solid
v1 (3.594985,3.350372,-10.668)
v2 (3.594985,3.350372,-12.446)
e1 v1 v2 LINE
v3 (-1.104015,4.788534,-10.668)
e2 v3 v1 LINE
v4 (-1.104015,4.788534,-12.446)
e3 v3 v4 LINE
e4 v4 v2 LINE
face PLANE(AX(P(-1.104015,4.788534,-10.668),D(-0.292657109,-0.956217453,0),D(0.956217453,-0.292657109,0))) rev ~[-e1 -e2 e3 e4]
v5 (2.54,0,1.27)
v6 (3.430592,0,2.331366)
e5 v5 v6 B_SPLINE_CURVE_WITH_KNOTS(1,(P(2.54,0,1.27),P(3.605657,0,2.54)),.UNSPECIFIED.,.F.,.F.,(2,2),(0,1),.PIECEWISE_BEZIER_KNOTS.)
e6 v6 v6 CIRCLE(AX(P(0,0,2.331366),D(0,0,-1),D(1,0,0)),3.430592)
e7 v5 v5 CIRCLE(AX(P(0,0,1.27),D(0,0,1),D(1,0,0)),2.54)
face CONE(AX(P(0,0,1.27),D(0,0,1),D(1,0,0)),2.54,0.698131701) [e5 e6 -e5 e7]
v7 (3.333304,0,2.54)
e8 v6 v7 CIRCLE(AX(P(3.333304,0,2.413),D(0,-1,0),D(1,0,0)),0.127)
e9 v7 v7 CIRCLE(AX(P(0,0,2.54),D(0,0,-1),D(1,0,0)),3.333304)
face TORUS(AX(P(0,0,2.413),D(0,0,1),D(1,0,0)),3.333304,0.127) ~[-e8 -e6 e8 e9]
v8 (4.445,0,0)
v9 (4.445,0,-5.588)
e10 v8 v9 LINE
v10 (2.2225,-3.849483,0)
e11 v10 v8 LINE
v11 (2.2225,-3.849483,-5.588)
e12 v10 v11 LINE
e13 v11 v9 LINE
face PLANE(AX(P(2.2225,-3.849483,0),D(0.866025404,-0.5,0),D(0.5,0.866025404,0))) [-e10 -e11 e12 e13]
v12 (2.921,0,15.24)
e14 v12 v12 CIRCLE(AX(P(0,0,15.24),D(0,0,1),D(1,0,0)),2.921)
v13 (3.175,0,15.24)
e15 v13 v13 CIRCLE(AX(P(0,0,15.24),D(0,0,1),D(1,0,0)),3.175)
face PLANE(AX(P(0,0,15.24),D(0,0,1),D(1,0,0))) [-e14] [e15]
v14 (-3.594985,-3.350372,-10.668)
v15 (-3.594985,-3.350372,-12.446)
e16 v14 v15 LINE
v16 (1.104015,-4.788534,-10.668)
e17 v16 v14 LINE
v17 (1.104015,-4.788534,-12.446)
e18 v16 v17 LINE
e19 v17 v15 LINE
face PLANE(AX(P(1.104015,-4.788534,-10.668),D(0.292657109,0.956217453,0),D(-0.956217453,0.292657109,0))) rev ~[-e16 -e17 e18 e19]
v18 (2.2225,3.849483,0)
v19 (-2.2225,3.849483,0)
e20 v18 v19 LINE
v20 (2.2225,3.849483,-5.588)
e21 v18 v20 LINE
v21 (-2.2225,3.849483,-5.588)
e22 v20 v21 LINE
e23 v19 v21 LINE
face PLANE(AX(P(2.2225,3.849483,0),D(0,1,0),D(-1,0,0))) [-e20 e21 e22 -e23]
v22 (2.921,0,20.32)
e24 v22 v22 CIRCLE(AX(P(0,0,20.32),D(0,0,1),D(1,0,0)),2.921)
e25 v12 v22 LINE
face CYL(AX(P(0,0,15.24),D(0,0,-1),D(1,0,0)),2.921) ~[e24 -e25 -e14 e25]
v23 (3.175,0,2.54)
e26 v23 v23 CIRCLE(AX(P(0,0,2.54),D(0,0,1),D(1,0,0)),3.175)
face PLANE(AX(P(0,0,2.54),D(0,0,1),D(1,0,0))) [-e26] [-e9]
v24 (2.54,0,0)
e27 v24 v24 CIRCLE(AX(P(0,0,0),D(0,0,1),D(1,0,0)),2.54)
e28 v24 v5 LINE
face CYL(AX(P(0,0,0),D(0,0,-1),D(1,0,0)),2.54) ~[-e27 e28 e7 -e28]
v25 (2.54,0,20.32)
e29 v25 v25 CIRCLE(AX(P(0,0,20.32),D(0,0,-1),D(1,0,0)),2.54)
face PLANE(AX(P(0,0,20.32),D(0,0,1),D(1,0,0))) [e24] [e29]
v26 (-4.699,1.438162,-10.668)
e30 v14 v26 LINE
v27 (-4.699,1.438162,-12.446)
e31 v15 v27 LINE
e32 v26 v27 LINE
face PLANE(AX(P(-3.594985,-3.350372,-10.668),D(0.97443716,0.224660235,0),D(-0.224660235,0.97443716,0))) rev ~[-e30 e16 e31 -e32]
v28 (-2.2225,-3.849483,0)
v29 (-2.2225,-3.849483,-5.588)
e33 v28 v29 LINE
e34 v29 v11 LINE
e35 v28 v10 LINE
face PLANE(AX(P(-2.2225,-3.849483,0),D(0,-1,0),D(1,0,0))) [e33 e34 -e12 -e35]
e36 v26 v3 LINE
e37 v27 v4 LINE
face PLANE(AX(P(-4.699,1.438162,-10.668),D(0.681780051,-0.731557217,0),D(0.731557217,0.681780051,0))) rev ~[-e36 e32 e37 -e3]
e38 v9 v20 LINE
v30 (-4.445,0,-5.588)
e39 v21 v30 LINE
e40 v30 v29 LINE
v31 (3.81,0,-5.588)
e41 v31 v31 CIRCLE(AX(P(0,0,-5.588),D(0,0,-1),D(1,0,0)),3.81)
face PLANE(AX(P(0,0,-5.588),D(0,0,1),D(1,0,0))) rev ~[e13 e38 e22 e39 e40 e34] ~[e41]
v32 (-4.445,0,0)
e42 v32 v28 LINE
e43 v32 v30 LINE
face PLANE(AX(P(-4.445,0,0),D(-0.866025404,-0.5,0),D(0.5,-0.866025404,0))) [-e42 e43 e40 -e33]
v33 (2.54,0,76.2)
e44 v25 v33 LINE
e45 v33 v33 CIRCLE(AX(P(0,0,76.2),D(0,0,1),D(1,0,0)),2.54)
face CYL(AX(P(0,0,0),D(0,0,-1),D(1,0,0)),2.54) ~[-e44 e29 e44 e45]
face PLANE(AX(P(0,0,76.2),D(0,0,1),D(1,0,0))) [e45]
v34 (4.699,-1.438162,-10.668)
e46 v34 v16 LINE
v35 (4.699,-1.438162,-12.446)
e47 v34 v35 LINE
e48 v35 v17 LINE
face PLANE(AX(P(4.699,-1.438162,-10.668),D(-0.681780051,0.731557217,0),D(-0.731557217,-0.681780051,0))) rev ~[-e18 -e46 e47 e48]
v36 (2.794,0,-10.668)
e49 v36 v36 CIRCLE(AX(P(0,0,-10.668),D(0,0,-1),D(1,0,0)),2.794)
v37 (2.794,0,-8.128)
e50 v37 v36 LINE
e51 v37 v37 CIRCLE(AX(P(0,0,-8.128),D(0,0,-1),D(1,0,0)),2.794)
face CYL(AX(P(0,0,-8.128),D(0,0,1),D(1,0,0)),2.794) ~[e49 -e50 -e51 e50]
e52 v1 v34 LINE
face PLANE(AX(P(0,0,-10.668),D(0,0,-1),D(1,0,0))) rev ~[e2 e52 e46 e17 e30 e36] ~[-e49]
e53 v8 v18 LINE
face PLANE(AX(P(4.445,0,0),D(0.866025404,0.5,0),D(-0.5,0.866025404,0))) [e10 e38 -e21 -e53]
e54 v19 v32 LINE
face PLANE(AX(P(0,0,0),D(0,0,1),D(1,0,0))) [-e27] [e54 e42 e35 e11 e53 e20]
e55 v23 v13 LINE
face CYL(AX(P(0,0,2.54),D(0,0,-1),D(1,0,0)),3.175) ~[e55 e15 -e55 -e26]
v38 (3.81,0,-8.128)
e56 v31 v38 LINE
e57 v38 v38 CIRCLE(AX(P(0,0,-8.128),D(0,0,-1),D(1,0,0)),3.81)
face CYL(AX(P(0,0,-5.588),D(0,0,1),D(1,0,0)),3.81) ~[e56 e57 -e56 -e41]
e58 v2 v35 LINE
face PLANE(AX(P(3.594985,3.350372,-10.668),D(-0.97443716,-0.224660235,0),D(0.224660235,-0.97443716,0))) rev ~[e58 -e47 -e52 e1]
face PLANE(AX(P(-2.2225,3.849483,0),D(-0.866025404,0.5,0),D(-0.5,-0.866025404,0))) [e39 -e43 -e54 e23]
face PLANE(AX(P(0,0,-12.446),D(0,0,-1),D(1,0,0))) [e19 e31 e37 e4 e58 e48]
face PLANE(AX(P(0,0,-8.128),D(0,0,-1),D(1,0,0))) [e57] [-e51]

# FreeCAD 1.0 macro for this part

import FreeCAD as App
import Part
import Sketcher
from FreeCAD import Vector
Q = App.Units.Quantity


def edges_at(feature, points):
    """Names of the edges that pass closest to the given points."""
    edges = feature.Shape.Edges
    near = lambda p: min(range(len(edges)), key=lambda i: edges[i].distToShape(Part.Vertex(*p))[0])
    return sorted({f"Edge{near(p) + 1}" for p in points})


def add_polygon(sketch, points):
    """Adds a closed chain of lines whose ends are joined by coincident constraints."""
    first, n = sketch.GeometryCount, len(points)
    for a, b in zip(points, points[1:] + points[:1]):
        sketch.addGeometry(Part.LineSegment(App.Vector(*a, 0), App.Vector(*b, 0)), False)
    for i in range(n):
        sketch.addConstraint(Sketcher.Constraint("Coincident", first + i, 2, first + (i + 1) % n, 1))

doc = App.newDocument("Part")
body = doc.addObject("PartDesign::Body", "Body")

# Sketch on XY plane
sketch1 = body.newObject("Sketcher::SketchObject", "Sketch")
sketch1.AttachmentSupport = (doc.getObject("XY_Plane"), [""])
sketch1.MapMode = "FlatFace"
sketch1.addGeometry(Part.Circle(Vector(0, 0, 0), Vector(0, 0, 1), 2.5), False)
sketch1.addConstraint(Sketcher.Constraint("Coincident", 0, 3, -1, 1))
sketch1.addConstraint(Sketcher.Constraint("Diameter", 0, Q("0.2 in")))
pad1 = body.newObject("PartDesign::Pad", "Pad")
pad1.Profile = sketch1
pad1.Length = Q("3 in")

# Sketch on XY plane
sketch2 = body.newObject("Sketcher::SketchObject", "Sketch001")
sketch2.AttachmentSupport = (doc.getObject("XY_Plane"), [""])
sketch2.MapMode = "FlatFace"
add_polygon(sketch2, [(2.2, -3.8), (4.4, 0), (2.2, 3.8), (-2.2, 3.8), (-4.4, 0), (-2.2, -3.8)])  # lines 0-5
sketch2.addConstraint(Sketcher.Constraint("Horizontal", 2))
sketch2.addConstraint(Sketcher.Constraint("Horizontal", 5))
sketch2.addConstraint(Sketcher.Constraint("Symmetric", 0, 2, 3, 2, -1, 1))
sketch2.addConstraint(Sketcher.Constraint("Symmetric", 1, 2, 4, 2, -1, 1))
sketch2.addConstraint(Sketcher.Constraint("PointOnObject", 0, 2, -1))
sketch2.addConstraint(Sketcher.Constraint("Parallel", 0, 3))
sketch2.addConstraint(Sketcher.Constraint("Vertical", 2, 2, 4, 2))
sketch2.addConstraint(Sketcher.Constraint("Angle", 0, Q("60 deg")))
sketch2.addConstraint(Sketcher.Constraint("DistanceX", 2, 2, 2, 1, Q("0.175 in")))
sketch2.addConstraint(Sketcher.Constraint("DistanceX", 3, 2, 0, 2, Q("0.35 in")))
pad2 = body.newObject("PartDesign::Pad", "Pad001")
pad2.Profile = sketch2
pad2.Length = Q("0.22 in")
pad2.Reversed = True

# Sketch on XY plane
sketch3 = body.newObject("Sketcher::SketchObject", "Sketch002")
sketch3.AttachmentSupport = (doc.getObject("XY_Plane"), [""])
sketch3.MapMode = "FlatFace"
sketch3.AttachmentOffset = App.Placement(Vector(0, 0, -0.22 * 25.4), App.Rotation())
sketch3.addGeometry(Part.Circle(Vector(0, 0, 0), Vector(0, 0, 1), 3.8), False)
sketch3.addConstraint(Sketcher.Constraint("Coincident", 0, 3, -1, 1))
sketch3.addConstraint(Sketcher.Constraint("Diameter", 0, Q("0.3 in")))
pad3 = body.newObject("PartDesign::Pad", "Pad002")
pad3.Profile = sketch3
pad3.Length = Q("0.1 in")
pad3.Reversed = True

# Sketch on XY plane
sketch4 = body.newObject("Sketcher::SketchObject", "Sketch003")
sketch4.AttachmentSupport = (doc.getObject("XY_Plane"), [""])
sketch4.MapMode = "FlatFace"
sketch4.AttachmentOffset = App.Placement(Vector(0, 0, -0.32 * 25.4), App.Rotation())
sketch4.addGeometry(Part.Circle(Vector(0, 0, 0), Vector(0, 0, 1), 2.8), False)
sketch4.addConstraint(Sketcher.Constraint("Coincident", 0, 3, -1, 1))
sketch4.addConstraint(Sketcher.Constraint("Diameter", 0, Q("0.22 in")))
pad4 = body.newObject("PartDesign::Pad", "Pad003")
pad4.Profile = sketch4
pad4.Length = Q("0.1 in")
pad4.Reversed = True

# Sketch on XY plane
sketch5 = body.newObject("Sketcher::SketchObject", "Sketch004")
sketch5.AttachmentSupport = (doc.getObject("XY_Plane"), [""])
sketch5.MapMode = "FlatFace"
sketch5.AttachmentOffset = App.Placement(Vector(0, 0, -0.42 * 25.4), App.Rotation())
add_polygon(sketch5, [(-3.6, -3.4), (-4.7, 1.4), (-1.1, 4.8), (3.6, 3.4), (4.7, -1.4), (1.1, -4.8)])  # lines 0-5
sketch5.addConstraint(Sketcher.Constraint("Symmetric", 0, 2, 3, 2, -1, 1))
sketch5.addConstraint(Sketcher.Constraint("Symmetric", 1, 2, 4, 2, -1, 1))
sketch5.addConstraint(Sketcher.Constraint("Symmetric", 2, 2, 5, 2, -1, 1))
sketch5.addConstraint(Sketcher.Constraint("Equal", 0, 1))
sketch5.addConstraint(Sketcher.Constraint("Equal", 1, 2))
sketch5.addConstraint(Sketcher.Constraint("DistanceX", 0, 2, 3, 2, Q("0.37 in")))
sketch5.addConstraint(Sketcher.Constraint("DistanceX", 1, 2, 2, 2, Q("0.185 in")))
sketch5.addConstraint(Sketcher.Constraint("DistanceY", 0, 2, 2, 2, 1.91221))
sketch5.addConstraint(Sketcher.Constraint("DistanceX", 4, 2, 2, 2, 2.49097))
pad5 = body.newObject("PartDesign::Pad", "Pad004")
pad5.Profile = sketch5
pad5.Length = Q("0.07 in")
pad5.Reversed = True
body2 = doc.addObject("PartDesign::Body", "Body001")

# Sketch on XY plane
sketch6 = body2.newObject("Sketcher::SketchObject", "Sketch005")
sketch6.AttachmentSupport = (doc.getObject("XY_Plane001"), [""])
sketch6.MapMode = "FlatFace"
sketch6.AttachmentOffset = App.Placement(Vector(0, 0, 0.05 * 25.4), App.Rotation())
sketch6.addGeometry(Part.Circle(Vector(0, 0, 0), Vector(0, 0, 1), 2.5), False)
sketch6.addConstraint(Sketcher.Constraint("Coincident", 0, 3, -1, 1))
sketch6.addConstraint(Sketcher.Constraint("Diameter", 0, Q("0.2 in")))
pad6 = body2.newObject("PartDesign::Pad", "Pad005")
pad6.Profile = sketch6
pad6.Length = Q("0.05 in")
pad6.TaperAngle = 40
doc.recompute()

fillet = body2.newObject("PartDesign::Fillet", "Fillet")
fillet.Base = (pad6, edges_at(pad6, [(-3.606, 0, 2.54)]))
fillet.Radius = Q("0.005 in")
doc.recompute()

boolean = body.newObject("PartDesign::Boolean", "Boolean")
boolean.Type = "Fuse"
boolean.addObjects([body2])

# Sketch on XY plane
sketch7 = body.newObject("Sketcher::SketchObject", "Sketch006")
sketch7.AttachmentSupport = (doc.getObject("XY_Plane"), [""])
sketch7.MapMode = "FlatFace"
sketch7.AttachmentOffset = App.Placement(Vector(0, 0, 0.1 * 25.4), App.Rotation())
sketch7.addGeometry(Part.Circle(Vector(0, 0, 0), Vector(0, 0, 1), 3.2), False)
sketch7.addConstraint(Sketcher.Constraint("Coincident", 0, 3, -1, 1))
sketch7.addConstraint(Sketcher.Constraint("Diameter", 0, Q("0.25 in")))
pad7 = body.newObject("PartDesign::Pad", "Pad006")
pad7.Profile = sketch7
pad7.Length = Q("0.5 in")

# Sketch on XY plane
sketch8 = body.newObject("Sketcher::SketchObject", "Sketch007")
sketch8.AttachmentSupport = (doc.getObject("XY_Plane"), [""])
sketch8.MapMode = "FlatFace"
sketch8.AttachmentOffset = App.Placement(Vector(0, 0, 0.6 * 25.4), App.Rotation())
sketch8.addGeometry(Part.Circle(Vector(0, 0, 0), Vector(0, 0, 1), 2.9), False)
sketch8.addConstraint(Sketcher.Constraint("Coincident", 0, 3, -1, 1))
sketch8.addConstraint(Sketcher.Constraint("Diameter", 0, Q("0.23 in")))
pad8 = body.newObject("PartDesign::Pad", "Pad007")
pad8.Profile = sketch8
pad8.Length = Q("0.2 in")

doc.recompute()
